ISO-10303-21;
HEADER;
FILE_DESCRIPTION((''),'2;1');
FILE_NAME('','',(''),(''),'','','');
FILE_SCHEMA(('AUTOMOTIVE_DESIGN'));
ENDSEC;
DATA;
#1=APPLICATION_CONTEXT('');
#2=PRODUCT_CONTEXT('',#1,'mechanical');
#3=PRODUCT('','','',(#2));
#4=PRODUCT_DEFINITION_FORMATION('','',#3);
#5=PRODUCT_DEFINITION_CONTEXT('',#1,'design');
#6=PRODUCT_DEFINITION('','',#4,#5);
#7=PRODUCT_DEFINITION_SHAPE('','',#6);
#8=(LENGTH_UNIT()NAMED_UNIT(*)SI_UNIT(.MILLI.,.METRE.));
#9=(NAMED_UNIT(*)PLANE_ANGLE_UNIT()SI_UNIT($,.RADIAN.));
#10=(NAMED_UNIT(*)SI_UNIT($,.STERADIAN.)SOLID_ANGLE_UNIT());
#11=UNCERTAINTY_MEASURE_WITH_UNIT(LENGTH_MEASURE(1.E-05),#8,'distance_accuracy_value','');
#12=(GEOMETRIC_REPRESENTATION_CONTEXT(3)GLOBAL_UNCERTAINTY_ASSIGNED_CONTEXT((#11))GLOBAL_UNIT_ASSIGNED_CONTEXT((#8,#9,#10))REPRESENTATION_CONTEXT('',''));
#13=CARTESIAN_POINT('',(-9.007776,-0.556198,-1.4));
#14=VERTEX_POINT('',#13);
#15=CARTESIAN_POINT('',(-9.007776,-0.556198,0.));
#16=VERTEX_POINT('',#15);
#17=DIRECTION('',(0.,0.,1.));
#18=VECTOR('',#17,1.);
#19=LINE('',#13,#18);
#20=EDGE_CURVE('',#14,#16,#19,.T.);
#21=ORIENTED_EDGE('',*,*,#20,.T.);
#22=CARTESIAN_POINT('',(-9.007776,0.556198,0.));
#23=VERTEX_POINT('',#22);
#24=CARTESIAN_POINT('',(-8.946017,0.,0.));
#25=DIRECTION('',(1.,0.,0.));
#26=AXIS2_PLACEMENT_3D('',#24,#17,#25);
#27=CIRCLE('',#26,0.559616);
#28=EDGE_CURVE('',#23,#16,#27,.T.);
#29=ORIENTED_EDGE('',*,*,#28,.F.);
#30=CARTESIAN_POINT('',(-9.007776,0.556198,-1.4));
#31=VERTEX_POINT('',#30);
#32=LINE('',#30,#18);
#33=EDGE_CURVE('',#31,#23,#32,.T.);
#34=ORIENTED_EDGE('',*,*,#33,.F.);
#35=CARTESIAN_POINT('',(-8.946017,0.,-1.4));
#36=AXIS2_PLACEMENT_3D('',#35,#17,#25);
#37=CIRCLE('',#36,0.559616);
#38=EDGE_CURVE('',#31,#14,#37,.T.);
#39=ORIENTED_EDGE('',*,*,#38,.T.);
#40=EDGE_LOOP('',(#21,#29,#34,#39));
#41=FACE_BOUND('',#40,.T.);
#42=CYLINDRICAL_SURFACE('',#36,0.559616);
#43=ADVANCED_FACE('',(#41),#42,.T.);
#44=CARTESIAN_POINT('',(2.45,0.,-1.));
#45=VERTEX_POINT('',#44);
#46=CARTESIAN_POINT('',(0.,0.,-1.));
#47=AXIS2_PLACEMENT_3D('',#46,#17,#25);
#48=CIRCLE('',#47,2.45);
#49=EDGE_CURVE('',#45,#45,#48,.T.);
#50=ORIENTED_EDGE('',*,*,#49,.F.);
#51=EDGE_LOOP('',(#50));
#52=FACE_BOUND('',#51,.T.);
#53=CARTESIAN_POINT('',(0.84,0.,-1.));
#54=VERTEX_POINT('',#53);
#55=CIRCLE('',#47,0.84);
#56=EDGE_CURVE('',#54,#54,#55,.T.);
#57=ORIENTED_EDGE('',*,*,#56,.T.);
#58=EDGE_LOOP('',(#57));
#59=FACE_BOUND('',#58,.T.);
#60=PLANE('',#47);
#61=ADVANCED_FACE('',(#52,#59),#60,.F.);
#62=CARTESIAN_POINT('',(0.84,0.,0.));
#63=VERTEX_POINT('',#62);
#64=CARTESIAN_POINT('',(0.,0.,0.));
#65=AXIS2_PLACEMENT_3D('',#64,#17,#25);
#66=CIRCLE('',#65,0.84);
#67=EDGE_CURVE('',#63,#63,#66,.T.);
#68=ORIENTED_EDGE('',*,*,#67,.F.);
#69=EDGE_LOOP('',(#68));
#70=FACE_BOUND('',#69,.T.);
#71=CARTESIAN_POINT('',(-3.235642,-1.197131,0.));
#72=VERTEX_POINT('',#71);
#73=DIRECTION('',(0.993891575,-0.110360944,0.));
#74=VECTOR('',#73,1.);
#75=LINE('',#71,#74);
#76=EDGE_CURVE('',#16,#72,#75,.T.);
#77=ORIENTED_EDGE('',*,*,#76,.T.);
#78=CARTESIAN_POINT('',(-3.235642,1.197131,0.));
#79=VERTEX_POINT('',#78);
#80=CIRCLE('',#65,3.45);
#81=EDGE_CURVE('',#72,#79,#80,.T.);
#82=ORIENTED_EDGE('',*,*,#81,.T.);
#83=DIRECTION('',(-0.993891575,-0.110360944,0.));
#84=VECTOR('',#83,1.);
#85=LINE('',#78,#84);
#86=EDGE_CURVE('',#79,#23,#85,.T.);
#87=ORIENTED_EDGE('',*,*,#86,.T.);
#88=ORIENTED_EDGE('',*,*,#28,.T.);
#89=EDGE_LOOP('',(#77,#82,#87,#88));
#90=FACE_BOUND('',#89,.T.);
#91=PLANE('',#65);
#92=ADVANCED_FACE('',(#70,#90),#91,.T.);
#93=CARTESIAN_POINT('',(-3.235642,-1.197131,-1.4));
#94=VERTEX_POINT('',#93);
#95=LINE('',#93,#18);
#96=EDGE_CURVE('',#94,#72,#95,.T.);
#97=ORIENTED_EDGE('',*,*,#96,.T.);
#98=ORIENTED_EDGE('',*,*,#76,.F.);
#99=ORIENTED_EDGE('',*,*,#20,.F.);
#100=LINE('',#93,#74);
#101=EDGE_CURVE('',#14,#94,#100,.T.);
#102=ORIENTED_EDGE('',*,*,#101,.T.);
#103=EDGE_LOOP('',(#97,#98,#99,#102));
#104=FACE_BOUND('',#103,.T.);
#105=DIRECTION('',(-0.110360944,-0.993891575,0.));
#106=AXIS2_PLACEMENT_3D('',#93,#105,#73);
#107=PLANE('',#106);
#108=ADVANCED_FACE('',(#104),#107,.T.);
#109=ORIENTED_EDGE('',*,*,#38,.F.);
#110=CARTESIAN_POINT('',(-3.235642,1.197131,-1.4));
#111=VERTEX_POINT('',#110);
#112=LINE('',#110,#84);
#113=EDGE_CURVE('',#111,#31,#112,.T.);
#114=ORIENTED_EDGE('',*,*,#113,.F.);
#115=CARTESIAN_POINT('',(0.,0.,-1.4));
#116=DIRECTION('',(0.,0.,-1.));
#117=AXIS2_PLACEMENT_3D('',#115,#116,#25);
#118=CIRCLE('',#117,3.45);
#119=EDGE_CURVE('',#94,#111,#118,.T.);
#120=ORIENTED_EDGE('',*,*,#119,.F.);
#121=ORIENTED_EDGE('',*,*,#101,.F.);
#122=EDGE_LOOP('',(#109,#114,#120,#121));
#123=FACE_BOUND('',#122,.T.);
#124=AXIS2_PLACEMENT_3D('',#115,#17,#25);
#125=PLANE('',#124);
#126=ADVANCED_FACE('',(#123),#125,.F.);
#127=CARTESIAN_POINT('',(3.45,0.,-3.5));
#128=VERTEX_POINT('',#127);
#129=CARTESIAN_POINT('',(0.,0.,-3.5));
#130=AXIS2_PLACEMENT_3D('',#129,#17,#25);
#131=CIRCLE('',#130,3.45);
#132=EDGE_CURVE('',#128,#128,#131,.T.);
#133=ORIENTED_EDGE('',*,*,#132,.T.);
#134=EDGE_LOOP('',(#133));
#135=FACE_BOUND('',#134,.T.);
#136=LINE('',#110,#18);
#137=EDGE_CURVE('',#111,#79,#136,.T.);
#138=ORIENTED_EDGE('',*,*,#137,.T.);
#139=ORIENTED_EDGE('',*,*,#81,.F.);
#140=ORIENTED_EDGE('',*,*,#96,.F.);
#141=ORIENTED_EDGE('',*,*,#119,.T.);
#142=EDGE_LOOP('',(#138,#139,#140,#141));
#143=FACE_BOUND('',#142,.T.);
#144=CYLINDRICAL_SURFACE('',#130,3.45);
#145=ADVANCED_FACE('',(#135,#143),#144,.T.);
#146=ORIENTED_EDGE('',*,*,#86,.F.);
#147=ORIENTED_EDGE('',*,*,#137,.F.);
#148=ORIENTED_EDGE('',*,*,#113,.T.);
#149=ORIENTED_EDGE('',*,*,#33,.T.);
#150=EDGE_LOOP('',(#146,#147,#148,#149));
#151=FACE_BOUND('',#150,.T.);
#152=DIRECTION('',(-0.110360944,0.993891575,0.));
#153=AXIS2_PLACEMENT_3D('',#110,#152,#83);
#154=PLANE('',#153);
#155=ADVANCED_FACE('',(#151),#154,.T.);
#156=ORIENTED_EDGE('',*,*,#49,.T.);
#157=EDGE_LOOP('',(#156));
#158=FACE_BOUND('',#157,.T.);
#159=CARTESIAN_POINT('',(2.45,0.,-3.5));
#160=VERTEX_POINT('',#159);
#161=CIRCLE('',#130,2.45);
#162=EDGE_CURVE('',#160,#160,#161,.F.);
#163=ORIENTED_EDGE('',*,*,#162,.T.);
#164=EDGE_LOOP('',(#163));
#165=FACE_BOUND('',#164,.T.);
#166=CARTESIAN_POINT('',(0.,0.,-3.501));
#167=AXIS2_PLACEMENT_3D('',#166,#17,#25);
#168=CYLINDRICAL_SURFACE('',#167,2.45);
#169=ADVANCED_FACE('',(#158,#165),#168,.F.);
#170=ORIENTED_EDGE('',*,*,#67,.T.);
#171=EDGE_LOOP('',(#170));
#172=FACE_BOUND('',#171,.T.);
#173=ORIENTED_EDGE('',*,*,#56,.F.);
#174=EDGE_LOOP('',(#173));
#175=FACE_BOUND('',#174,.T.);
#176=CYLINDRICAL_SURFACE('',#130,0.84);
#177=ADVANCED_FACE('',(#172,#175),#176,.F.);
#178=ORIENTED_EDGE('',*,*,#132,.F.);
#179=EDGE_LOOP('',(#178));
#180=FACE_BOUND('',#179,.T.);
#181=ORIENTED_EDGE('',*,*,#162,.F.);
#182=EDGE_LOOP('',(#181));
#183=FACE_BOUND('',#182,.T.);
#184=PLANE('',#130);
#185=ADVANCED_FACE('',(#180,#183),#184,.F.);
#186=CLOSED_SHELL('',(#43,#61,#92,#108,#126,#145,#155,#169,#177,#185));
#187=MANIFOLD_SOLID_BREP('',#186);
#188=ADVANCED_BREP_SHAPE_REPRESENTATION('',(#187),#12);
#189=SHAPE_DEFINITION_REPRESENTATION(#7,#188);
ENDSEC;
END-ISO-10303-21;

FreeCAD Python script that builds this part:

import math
import FreeCAD as App
import Part
import Sketcher

V = App.Vector

doc = App.newDocument("Part")
body = doc.addObject("PartDesign::Body", "Body")

# Sketch on XY plane
sketch1 = body.newObject("Sketcher::SketchObject", "Sketch")
sketch1.AttachmentSupport = (doc.getObject("XY_Plane"), [""])
sketch1.MapMode = "FlatFace"
sketch1.addGeometry(Part.Circle(V(0, 0, 0), V(0, 0, 1), 3.5), False)
sketch1.addConstraint([
    Sketcher.Constraint("Coincident", 0, 3, -1, 1),
    Sketcher.Constraint("Diameter", 0, 6.9),
])
pad1 = body.newObject("PartDesign::Pad", "Pad")
pad1.Profile = sketch1
pad1.Length = 3.5
pad1.Reversed = True

# Sketch on XY plane
sketch2 = body.newObject("Sketcher::SketchObject", "Sketch001")
sketch2.AttachmentSupport = (doc.getObject("XY_Plane"), [""])
sketch2.MapMode = "FlatFace"
sketch2.AttachmentOffset = App.Placement(V(0, 0, -1), App.Rotation())
sketch2.addGeometry(Part.Circle(V(0, 0, 0), V(0, 0, 1), 2.5), False)
sketch2.addConstraint([
    Sketcher.Constraint("Coincident", 0, 3, -1, 1),
    Sketcher.Constraint("Diameter", 0, 4.9),
])
pocket1 = body.newObject("PartDesign::Pocket", "Pocket")
pocket1.Profile = sketch2
pocket1.Type = "UpToFirst"

# Sketch on XY plane
sketch3 = body.newObject("Sketcher::SketchObject", "Sketch002")
sketch3.AttachmentSupport = (doc.getObject("XY_Plane"), [""])
sketch3.MapMode = "FlatFace"
sketch3.addGeometry(Part.Circle(V(0, 0, 0), V(0, 0, 1), 0.8), False)
sketch3.addConstraint([
    Sketcher.Constraint("Coincident", 0, 3, -1, 1),
    Sketcher.Constraint("Diameter", 0, 1.68),
])
pocket2 = body.newObject("PartDesign::Pocket", "Pocket001")
pocket2.Profile = sketch3
pocket2.Type = "ThroughAll"
pocket2.Midplane = True

# Sketch on XY plane
sketch4 = body.newObject("Sketcher::SketchObject", "Sketch003")
sketch4.AttachmentSupport = (doc.getObject("XY_Plane"), [""])
sketch4.MapMode = "FlatFace"
sketch4.addGeometry([
    Part.LineSegment(V(-3.2, 1.2, 0), V(-9, 0.6, 0)),
    Part.ArcOfCircle(Part.Circle(V(-8.9, 0, 0), V(0, 0, 1), 0.6), math.radians(96), math.radians(264)),
    Part.LineSegment(V(-9, -0.6, 0), V(-3.2, -1.2, 0)),
    Part.ArcOfCircle(Part.Circle(V(0, 0, 0), V(0, 0, 1), 3.4), math.radians(160), math.radians(200)),
], False)
sketch4.addConstraint([
    Sketcher.Constraint("Tangent", 0, 2, 1, 1),
    Sketcher.Constraint("Tangent", 1, 2, 2, 1),
    Sketcher.Constraint("Coincident", 2, 2, 3, 2),
    Sketcher.Constraint("Coincident", 3, 1, 0, 1),
    Sketcher.Constraint("Coincident", 3, 3, -1, 1),
    Sketcher.Constraint("Symmetric", 0, 2, 1, 2, -1),
    Sketcher.Constraint("Radius", 3, 3.45),
    Sketcher.Constraint("Radius", 1, 0.559616),
    Sketcher.Constraint("Distance", 0, 5.80761),
    Sketcher.Constraint("DistanceX", 2, 2, -1, 1, 3.235642),
])
pad2 = body.newObject("PartDesign::Pad", "Pad001")
pad2.Profile = sketch4
pad2.Length = 1.4
pad2.Reversed = True

doc.recompute()
